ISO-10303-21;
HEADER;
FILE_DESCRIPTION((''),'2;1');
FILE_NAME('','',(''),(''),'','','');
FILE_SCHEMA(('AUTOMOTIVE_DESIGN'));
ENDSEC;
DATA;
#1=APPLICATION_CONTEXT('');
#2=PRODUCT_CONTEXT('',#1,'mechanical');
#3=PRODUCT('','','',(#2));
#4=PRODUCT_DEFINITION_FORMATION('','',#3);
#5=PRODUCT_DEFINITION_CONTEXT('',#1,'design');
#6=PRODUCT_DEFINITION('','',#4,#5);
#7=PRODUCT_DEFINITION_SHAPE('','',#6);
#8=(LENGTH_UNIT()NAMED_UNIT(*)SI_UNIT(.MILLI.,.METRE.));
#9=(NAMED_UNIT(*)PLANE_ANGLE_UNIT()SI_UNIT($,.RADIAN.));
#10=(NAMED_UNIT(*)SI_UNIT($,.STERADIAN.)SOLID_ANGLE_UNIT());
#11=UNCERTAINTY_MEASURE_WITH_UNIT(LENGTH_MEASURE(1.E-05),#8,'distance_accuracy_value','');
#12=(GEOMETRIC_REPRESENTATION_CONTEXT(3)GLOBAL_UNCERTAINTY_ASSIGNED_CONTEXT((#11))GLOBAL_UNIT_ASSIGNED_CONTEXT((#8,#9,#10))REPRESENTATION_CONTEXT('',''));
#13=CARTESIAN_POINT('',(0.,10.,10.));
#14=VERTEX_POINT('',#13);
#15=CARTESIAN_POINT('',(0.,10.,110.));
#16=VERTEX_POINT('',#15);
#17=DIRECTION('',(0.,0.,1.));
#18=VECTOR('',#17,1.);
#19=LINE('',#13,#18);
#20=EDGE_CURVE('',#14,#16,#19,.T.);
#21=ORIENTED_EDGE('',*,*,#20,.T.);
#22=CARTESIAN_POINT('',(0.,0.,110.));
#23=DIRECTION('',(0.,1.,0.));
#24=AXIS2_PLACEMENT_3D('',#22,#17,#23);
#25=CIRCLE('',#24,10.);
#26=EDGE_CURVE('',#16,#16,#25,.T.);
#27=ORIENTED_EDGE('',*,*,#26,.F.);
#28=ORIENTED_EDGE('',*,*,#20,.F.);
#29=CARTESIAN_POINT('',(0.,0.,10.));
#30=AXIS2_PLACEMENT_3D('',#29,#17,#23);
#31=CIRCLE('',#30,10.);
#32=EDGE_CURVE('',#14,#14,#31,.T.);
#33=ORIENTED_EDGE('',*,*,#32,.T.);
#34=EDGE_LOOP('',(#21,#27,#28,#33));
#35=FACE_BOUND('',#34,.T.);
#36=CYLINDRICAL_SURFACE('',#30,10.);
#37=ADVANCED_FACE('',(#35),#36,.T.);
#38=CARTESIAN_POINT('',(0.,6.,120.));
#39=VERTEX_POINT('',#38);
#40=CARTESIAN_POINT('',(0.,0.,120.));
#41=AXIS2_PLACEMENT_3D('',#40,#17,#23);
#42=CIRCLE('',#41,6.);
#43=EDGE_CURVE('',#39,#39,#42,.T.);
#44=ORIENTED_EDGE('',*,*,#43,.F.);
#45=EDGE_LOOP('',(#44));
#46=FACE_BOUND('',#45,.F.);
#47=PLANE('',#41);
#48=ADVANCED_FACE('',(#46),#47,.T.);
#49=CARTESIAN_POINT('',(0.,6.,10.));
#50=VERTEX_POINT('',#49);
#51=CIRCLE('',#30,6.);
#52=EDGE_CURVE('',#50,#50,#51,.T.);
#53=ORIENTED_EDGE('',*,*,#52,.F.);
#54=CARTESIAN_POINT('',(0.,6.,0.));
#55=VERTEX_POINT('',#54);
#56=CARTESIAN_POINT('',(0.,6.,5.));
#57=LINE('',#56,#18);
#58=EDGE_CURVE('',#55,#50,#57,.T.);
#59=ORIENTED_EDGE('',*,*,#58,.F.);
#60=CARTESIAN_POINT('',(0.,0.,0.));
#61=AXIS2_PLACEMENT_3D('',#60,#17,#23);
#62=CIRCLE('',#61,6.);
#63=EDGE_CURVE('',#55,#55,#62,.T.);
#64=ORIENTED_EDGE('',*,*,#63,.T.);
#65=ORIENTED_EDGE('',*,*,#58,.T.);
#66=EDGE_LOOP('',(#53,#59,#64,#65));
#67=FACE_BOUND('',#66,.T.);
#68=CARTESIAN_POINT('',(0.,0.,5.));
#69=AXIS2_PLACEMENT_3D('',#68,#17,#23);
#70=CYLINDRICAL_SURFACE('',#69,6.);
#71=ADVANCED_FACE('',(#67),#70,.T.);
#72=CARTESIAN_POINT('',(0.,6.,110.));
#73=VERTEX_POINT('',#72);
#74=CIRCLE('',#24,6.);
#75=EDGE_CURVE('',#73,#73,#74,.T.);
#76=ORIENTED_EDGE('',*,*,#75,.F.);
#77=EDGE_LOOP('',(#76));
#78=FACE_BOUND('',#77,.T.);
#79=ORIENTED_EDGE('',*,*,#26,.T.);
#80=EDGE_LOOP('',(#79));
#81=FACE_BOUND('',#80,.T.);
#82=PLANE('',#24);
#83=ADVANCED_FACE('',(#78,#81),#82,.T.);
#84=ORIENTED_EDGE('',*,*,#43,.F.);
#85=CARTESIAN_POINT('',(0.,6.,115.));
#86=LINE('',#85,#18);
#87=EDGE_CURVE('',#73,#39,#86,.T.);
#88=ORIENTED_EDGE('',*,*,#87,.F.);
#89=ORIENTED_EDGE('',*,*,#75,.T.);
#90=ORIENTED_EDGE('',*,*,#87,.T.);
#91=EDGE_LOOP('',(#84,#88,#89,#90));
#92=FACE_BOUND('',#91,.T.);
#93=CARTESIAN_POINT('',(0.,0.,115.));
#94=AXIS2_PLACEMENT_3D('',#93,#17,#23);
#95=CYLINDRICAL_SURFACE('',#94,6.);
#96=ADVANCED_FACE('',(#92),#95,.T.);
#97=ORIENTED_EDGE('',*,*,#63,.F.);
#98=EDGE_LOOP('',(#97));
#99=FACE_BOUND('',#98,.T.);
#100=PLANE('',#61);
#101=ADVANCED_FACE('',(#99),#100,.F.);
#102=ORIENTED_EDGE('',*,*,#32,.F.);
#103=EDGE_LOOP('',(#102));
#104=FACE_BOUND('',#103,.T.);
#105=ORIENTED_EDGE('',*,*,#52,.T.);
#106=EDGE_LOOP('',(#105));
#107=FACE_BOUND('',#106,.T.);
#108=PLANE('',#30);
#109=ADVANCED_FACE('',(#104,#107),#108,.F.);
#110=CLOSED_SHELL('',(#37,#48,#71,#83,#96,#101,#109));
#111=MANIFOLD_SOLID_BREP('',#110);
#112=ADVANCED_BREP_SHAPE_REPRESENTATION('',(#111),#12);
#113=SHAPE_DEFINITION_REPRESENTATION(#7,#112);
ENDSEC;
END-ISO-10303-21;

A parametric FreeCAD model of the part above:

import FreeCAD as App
import Part
import Sketcher


def add_polygon(sketch, points):
    """Adds a closed chain of lines whose ends are joined by coincident constraints."""
    first, n = sketch.GeometryCount, len(points)
    for a, b in zip(points, points[1:] + points[:1]):
        sketch.addGeometry(Part.LineSegment(App.Vector(*a, 0), App.Vector(*b, 0)), False)
    for i in range(n):
        sketch.addConstraint(Sketcher.Constraint("Coincident", first + i, 2, first + (i + 1) % n, 1))

doc = App.newDocument("Part")
body = doc.addObject("PartDesign::Body", "Body")

# Sketch on YZ plane
sketch1 = doc.addObject("Sketcher::SketchObject", "Sketch")
body.addObject(sketch1)
sketch1.AttachmentSupport = (doc.YZ_Plane, [""])
sketch1.MapMode = "FlatFace"
add_polygon(sketch1, [(6, 10), (10, 10), (10, 110), (6, 110), (6, 120), (0, 120), (0, 0), (6, 0)])  # lines 0-7
sketch1.addConstraint(Sketcher.Constraint("Horizontal", 0))
sketch1.addConstraint(Sketcher.Constraint("Vertical", 1))
sketch1.addConstraint(Sketcher.Constraint("Horizontal", 2))
sketch1.addConstraint(Sketcher.Constraint("Vertical", 3))
sketch1.addConstraint(Sketcher.Constraint("Horizontal", 4))
sketch1.addConstraint(Sketcher.Constraint("Vertical", 5))
sketch1.addConstraint(Sketcher.Constraint("Horizontal", 6))
sketch1.addConstraint(Sketcher.Constraint("Vertical", 7))
sketch1.addConstraint(Sketcher.Constraint("Coincident", 5, 2, -1, 1))
sketch1.addConstraint(Sketcher.Constraint("Vertical", 3, 2, 6, 2))
sketch1.addConstraint(Sketcher.Constraint("Equal", 3, 7))
sketch1.addConstraint(Sketcher.Constraint("DistanceX", 0, 1, 0, 2, 4.0))
sketch1.addConstraint(Sketcher.Constraint("DistanceX", 4, 2, 4, 1, 6.0))
sketch1.addConstraint(Sketcher.Constraint("DistanceY", 1, 1, 1, 2, 100.0))
sketch1.addConstraint(Sketcher.Constraint("DistanceY", 3, 1, 3, 2, 10.0))
revolution = doc.addObject("PartDesign::Revolution", "Revolution")
body.addObject(revolution)
revolution.Profile = sketch1
revolution.ReferenceAxis = (sketch1, ["V_Axis"])
revolution.Angle = 360

doc.recompute()
